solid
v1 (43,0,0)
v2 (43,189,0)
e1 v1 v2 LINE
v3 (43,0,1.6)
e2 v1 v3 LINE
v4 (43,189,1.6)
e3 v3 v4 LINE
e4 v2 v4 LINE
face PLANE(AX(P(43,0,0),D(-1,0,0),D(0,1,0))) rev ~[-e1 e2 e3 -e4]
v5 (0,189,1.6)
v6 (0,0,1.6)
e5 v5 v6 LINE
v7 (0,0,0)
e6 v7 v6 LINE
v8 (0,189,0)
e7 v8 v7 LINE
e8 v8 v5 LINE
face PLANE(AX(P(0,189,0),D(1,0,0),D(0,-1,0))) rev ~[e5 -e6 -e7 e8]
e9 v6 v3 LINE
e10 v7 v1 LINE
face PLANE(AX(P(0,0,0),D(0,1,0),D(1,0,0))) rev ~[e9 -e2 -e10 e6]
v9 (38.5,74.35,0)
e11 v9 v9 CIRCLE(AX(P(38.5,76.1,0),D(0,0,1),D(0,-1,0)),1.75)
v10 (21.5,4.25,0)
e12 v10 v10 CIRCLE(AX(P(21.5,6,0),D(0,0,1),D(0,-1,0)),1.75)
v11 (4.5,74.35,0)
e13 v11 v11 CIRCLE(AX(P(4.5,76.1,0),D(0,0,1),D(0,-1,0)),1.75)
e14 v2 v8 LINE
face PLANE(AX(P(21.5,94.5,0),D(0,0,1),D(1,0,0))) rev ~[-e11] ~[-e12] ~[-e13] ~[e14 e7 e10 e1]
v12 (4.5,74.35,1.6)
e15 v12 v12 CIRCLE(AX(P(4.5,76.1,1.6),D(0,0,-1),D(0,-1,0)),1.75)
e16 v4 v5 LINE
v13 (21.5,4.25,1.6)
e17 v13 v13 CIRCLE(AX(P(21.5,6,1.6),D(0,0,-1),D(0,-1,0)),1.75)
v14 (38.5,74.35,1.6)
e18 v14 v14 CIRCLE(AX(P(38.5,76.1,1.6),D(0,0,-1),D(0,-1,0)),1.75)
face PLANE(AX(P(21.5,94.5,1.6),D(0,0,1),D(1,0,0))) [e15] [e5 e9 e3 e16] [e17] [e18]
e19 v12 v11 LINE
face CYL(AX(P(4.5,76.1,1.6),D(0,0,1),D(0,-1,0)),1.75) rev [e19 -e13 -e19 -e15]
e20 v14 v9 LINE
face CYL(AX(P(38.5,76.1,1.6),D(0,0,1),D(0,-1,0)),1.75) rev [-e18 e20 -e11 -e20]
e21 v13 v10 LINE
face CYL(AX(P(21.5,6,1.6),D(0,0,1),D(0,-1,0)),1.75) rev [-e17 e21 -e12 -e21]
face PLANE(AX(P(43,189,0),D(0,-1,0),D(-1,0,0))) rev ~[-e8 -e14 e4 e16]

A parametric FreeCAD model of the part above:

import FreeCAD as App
import Part
import Sketcher
from FreeCAD import Vector

doc = App.newDocument("Part")
body = doc.addObject("PartDesign::Body", "Body")

sketch1 = doc.addObject("Sketcher::SketchObject", "Sketch")
body.addObject(sketch1)
sketch1.AttachmentSupport = (doc.XY_Plane, [""])
sketch1.MapMode = "FlatFace"
sketch1.addGeometry([
    Part.LineSegment(Vector(0, 0, 0), Vector(43, 0, 0)),
    Part.LineSegment(Vector(43, 0, 0), Vector(43, 189, 0)),
    Part.LineSegment(Vector(43, 189, 0), Vector(0, 189, 0)),
    Part.LineSegment(Vector(0, 189, 0), Vector(0, 0, 0)),
], False)
sketch1.addConstraint([
    Sketcher.Constraint("Coincident", 0, 2, 1, 1),
    Sketcher.Constraint("Coincident", 1, 2, 2, 1),
    Sketcher.Constraint("Coincident", 2, 2, 3, 1),
    Sketcher.Constraint("Coincident", 3, 2, 0, 1),
    Sketcher.Constraint("Horizontal", 0),
    Sketcher.Constraint("Vertical", 1),
    Sketcher.Constraint("Horizontal", 2),
    Sketcher.Constraint("Vertical", 3),
    Sketcher.Constraint("Coincident", 3, 2, -1, 1),
    Sketcher.Constraint("DistanceX", 0, 1, 0, 2, 43.0),
    Sketcher.Constraint("DistanceY", 1, 1, 1, 2, 189.0),
])
pad1 = doc.addObject("PartDesign::Pad", "Pad")
body.addObject(pad1)
pad1.Profile = sketch1
pad1.Length = 1.6

sketch2 = doc.addObject("Sketcher::SketchObject", "Sketch001")
body.addObject(sketch2)
sketch2.AttachmentSupport = (doc.XY_Plane, [""])
sketch2.MapMode = "FlatFace"
sketch2.AttachmentOffset = App.Placement(Vector(0, 0, 1.6), App.Rotation())
sketch2.addGeometry(Part.Circle(Vector(4.5, 76.1, 0), Vector(0, 0, 1), 1.8), False)
sketch2.addConstraint([
    Sketcher.Constraint("Diameter", 0, 3.5),
    Sketcher.Constraint("DistanceX", -1, 1, 0, 3, 4.5),
    Sketcher.Constraint("DistanceY", -1, 1, 0, 3, 76.1),
])
doc.recompute()
hole = doc.addObject("PartDesign::Hole", "Hole")
body.addObject(hole)
hole.Profile = sketch2
hole.ThreadType = "None"
hole.Diameter = 3.5
hole.DepthType = "ThroughAll"

sketch3 = doc.addObject("Sketcher::SketchObject", "Sketch002")
body.addObject(sketch3)
sketch3.AttachmentSupport = (doc.XY_Plane, [""])
sketch3.MapMode = "FlatFace"
sketch3.AttachmentOffset = App.Placement(Vector(0, 0, 1.6), App.Rotation())
sketch3.addGeometry(Part.Circle(Vector(38.5, 76.1, 0), Vector(0, 0, 1), 1.8), False)
sketch3.addConstraint([
    Sketcher.Constraint("Diameter", 0, 3.5),
    Sketcher.Constraint("DistanceX", -1, 1, 0, 3, 38.5),
    Sketcher.Constraint("DistanceY", -1, 1, 0, 3, 76.1),
])
doc.recompute()
hole2 = doc.addObject("PartDesign::Hole", "Hole001")
body.addObject(hole2)
hole2.Profile = sketch3
hole2.ThreadType = "None"
hole2.Diameter = 3.5
hole2.DepthType = "ThroughAll"

sketch4 = doc.addObject("Sketcher::SketchObject", "Sketch003")
body.addObject(sketch4)
sketch4.AttachmentSupport = (doc.XY_Plane, [""])
sketch4.MapMode = "FlatFace"
sketch4.AttachmentOffset = App.Placement(Vector(0, 0, 1.6), App.Rotation())
sketch4.addGeometry(Part.Circle(Vector(21.5, 6, 0), Vector(0, 0, 1), 1.8), False)
sketch4.addConstraint([
    Sketcher.Constraint("Diameter", 0, 3.5),
    Sketcher.Constraint("DistanceY", -1, 1, 0, 3, 6.0),
    Sketcher.Constraint("DistanceX", -1, 1, 0, 3, 21.5),
])
doc.recompute()
hole3 = doc.addObject("PartDesign::Hole", "Hole002")
body.addObject(hole3)
hole3.Profile = sketch4
hole3.ThreadType = "None"
hole3.Diameter = 3.5
hole3.DepthType = "ThroughAll"

doc.recompute()
